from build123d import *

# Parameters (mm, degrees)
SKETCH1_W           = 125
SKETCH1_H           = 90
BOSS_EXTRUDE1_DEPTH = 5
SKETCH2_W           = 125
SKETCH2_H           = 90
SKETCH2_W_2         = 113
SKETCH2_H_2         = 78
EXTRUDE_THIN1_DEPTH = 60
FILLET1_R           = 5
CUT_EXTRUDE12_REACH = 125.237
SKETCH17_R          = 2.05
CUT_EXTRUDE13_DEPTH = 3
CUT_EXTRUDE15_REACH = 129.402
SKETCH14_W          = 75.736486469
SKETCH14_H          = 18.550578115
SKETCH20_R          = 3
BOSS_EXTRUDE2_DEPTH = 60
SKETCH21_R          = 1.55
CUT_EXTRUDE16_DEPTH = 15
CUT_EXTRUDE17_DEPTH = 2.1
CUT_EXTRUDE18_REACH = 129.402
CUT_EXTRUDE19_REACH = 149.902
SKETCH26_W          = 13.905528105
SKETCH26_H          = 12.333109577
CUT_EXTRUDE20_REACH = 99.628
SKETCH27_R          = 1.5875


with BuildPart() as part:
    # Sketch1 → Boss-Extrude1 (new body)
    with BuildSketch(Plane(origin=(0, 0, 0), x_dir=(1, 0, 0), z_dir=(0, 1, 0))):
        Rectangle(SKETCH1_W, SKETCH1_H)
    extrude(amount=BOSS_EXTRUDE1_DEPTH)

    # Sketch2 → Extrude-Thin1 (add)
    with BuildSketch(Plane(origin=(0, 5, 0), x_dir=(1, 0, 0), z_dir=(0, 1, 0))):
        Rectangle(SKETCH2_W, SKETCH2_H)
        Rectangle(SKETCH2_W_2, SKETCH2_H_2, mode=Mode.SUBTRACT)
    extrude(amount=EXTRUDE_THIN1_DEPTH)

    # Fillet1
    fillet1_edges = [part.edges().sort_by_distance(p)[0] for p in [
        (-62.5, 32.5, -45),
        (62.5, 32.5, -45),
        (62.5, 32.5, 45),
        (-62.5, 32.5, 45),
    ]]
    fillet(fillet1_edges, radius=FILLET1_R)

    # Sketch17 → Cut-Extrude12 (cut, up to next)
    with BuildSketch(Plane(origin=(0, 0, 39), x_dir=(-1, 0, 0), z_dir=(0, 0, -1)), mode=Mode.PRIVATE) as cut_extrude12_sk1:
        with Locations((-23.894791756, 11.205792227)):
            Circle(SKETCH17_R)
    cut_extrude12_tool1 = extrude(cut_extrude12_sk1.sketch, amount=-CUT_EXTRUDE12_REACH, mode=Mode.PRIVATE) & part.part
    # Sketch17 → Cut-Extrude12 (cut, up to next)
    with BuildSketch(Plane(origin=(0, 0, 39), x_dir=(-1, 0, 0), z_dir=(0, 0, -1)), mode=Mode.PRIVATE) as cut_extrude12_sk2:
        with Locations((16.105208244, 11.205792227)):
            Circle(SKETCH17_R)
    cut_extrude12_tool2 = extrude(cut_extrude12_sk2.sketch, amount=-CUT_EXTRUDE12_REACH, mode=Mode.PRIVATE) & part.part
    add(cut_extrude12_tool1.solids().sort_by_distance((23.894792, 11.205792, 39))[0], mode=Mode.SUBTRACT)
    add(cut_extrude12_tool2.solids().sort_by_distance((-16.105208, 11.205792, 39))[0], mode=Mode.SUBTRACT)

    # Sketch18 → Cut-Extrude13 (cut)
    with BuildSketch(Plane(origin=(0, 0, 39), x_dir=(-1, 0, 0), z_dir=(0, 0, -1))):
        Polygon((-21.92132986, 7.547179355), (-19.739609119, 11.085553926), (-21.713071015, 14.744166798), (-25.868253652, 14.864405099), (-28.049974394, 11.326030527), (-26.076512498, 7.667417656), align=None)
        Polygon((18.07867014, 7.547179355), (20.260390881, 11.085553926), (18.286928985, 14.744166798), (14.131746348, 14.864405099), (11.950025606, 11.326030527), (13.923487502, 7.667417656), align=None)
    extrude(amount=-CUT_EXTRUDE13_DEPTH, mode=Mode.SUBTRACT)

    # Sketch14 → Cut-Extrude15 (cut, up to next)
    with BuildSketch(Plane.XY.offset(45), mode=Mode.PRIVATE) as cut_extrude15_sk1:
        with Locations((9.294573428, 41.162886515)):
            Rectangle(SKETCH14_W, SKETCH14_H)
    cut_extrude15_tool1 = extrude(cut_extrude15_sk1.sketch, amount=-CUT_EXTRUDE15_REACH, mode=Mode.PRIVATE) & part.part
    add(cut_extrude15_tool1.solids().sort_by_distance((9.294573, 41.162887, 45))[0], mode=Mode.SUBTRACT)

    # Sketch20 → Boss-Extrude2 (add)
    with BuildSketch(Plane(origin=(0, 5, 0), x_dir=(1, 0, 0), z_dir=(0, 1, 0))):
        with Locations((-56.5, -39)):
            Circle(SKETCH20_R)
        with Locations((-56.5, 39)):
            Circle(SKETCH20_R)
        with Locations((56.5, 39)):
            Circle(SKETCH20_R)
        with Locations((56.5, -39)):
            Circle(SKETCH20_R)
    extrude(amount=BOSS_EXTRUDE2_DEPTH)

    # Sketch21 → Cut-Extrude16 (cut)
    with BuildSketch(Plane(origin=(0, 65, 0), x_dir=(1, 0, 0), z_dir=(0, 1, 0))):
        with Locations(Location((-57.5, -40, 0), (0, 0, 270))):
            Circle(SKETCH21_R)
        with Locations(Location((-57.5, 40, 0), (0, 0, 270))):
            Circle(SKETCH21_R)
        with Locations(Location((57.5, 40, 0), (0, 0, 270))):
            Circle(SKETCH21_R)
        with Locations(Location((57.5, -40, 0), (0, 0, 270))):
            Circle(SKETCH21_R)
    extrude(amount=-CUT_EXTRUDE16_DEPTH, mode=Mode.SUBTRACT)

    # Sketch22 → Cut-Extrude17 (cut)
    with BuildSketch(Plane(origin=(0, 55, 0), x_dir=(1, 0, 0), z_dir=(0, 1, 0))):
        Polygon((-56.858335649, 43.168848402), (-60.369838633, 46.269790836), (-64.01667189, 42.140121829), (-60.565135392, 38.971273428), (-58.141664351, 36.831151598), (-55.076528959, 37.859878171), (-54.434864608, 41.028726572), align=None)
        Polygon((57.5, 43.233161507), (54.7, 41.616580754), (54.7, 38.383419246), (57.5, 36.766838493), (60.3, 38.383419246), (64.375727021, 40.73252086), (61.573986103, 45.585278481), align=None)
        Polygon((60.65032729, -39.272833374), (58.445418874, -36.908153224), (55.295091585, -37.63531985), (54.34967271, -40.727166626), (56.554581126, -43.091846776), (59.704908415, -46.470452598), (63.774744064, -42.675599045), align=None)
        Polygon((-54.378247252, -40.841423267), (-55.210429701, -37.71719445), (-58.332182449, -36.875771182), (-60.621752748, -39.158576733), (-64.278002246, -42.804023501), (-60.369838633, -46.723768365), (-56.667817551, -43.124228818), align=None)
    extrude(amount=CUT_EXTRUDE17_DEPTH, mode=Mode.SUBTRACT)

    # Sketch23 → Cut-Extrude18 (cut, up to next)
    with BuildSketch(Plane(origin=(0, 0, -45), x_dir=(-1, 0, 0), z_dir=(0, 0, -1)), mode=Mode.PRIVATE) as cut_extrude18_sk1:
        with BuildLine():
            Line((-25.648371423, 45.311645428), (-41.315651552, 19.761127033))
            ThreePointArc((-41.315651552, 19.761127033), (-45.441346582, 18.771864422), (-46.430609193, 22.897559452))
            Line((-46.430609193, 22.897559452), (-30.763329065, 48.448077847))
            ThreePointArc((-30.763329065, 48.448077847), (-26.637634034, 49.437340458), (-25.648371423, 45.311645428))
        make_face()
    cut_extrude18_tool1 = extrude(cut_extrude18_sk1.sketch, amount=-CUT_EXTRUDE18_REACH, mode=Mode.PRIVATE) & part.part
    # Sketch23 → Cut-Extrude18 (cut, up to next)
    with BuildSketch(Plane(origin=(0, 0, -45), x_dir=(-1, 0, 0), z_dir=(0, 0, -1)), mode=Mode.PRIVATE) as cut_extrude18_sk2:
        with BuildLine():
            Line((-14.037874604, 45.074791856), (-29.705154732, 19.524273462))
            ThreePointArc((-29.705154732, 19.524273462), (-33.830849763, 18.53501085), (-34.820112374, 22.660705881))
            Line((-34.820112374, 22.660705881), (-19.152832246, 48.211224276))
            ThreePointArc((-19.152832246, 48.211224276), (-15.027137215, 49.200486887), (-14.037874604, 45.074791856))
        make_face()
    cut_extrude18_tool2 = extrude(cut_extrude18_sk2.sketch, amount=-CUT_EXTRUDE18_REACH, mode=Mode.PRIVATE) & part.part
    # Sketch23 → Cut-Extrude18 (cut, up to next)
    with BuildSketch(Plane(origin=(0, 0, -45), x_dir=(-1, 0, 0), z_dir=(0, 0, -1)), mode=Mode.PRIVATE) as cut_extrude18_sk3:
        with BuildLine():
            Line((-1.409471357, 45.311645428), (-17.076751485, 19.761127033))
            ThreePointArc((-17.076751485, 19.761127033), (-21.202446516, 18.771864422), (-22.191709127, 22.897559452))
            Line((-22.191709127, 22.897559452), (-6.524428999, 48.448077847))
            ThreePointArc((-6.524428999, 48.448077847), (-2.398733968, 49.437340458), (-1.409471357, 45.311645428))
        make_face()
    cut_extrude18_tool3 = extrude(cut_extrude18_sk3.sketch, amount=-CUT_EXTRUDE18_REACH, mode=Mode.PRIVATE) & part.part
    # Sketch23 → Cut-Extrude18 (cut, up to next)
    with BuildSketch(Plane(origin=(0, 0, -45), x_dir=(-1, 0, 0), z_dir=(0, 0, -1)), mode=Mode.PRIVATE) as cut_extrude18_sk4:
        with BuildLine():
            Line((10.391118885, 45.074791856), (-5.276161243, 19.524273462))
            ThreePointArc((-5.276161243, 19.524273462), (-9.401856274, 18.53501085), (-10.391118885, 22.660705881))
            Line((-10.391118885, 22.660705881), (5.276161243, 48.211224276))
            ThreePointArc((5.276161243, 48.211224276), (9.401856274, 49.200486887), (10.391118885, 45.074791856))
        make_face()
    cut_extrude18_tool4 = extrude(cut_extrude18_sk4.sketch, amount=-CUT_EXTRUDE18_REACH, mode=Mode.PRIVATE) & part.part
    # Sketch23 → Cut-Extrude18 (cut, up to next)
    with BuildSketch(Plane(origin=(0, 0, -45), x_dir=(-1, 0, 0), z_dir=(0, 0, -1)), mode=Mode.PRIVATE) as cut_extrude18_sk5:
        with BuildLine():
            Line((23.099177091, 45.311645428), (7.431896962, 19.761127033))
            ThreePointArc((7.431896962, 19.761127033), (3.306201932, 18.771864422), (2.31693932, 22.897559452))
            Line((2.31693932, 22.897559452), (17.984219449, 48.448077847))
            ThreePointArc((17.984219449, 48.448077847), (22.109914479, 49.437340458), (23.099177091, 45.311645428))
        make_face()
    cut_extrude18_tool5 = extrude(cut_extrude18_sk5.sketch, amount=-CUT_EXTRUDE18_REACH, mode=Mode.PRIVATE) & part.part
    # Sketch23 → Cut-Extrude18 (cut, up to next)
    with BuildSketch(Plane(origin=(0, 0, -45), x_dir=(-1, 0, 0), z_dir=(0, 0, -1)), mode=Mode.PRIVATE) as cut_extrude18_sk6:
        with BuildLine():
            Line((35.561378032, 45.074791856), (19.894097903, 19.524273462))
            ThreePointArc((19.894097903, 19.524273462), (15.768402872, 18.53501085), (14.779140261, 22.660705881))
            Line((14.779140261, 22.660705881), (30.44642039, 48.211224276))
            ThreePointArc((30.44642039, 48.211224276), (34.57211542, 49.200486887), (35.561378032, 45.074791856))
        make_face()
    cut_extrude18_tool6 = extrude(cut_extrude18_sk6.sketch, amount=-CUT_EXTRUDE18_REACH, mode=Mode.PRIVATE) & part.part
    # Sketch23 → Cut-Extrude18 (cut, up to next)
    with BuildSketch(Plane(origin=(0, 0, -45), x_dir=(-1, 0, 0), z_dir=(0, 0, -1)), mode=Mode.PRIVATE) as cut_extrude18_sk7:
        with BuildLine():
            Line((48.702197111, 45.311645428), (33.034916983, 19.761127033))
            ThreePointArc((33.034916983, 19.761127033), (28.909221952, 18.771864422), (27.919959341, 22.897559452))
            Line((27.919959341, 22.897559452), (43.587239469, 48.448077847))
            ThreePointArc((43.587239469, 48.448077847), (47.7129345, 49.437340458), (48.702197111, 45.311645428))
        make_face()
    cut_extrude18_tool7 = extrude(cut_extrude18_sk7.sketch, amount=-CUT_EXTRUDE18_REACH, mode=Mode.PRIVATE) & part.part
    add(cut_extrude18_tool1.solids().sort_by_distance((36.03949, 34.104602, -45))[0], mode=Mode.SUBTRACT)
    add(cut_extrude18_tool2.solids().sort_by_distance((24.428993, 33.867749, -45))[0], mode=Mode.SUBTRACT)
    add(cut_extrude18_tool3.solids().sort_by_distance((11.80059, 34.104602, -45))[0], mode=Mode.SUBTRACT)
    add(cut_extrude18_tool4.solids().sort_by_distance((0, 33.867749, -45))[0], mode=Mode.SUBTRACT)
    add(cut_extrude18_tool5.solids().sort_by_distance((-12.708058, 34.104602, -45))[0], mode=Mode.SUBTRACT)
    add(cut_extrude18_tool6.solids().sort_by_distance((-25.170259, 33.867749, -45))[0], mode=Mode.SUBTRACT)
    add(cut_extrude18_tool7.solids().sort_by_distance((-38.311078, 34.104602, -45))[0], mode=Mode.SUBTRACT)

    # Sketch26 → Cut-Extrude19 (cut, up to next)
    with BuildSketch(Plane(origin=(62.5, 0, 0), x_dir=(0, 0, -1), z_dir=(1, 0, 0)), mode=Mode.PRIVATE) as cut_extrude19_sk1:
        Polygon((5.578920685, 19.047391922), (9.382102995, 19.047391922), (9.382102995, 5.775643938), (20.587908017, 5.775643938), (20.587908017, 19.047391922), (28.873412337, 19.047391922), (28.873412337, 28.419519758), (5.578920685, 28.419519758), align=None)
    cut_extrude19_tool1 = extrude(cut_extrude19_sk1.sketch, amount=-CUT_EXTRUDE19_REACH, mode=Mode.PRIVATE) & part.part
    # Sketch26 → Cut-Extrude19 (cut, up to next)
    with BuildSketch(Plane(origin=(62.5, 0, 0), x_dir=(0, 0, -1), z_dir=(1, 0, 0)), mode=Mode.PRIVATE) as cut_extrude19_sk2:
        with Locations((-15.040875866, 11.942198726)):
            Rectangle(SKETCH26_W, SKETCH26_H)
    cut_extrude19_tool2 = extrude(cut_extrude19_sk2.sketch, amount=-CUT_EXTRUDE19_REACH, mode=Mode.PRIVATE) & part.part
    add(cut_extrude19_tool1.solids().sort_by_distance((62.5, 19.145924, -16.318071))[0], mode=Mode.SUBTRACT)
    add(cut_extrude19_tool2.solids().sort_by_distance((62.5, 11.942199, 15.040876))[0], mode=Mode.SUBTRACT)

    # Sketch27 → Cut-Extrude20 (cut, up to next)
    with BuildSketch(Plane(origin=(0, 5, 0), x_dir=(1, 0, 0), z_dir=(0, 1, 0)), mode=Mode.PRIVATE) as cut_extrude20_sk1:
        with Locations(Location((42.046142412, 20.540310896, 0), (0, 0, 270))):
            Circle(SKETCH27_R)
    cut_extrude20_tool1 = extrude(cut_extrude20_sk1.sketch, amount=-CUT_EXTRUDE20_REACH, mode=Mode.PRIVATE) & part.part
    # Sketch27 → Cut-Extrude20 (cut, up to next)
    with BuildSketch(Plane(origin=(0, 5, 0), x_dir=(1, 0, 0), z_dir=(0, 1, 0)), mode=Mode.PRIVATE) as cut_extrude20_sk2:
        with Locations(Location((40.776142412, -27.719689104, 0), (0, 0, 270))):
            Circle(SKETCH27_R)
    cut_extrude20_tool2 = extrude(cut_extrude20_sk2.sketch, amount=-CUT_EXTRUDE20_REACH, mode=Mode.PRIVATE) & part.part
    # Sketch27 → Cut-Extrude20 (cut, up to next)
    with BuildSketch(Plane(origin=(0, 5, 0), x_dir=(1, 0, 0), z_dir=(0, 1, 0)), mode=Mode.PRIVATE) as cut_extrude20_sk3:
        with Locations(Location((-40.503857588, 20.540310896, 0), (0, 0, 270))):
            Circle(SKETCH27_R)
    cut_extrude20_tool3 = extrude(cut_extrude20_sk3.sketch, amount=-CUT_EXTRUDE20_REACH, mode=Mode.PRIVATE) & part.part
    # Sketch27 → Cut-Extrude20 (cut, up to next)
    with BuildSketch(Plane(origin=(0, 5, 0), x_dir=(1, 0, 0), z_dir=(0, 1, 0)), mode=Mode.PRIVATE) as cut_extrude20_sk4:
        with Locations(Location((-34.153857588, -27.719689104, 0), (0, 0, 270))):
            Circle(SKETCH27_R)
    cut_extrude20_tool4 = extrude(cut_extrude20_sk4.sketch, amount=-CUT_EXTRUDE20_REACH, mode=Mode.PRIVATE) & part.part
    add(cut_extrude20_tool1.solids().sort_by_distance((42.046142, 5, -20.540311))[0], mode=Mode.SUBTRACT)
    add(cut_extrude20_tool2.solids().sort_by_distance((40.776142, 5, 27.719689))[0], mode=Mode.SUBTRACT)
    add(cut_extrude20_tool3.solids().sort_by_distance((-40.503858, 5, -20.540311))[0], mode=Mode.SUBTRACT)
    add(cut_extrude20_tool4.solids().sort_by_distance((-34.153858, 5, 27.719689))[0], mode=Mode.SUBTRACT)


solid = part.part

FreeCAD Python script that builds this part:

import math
import FreeCAD as App
import Part
import Sketcher

V = App.Vector
Q = App.Units.Quantity


def edges_at(feature, points):
    """Names of the edges that pass closest to the given points."""
    edges = feature.Shape.Edges
    near = lambda p: min(range(len(edges)), key=lambda i: edges[i].distToShape(Part.Vertex(*p))[0])
    return sorted({f"Edge{near(p) + 1}" for p in points})


def add_polygon(sketch, points):
    """Adds a closed chain of lines whose ends are joined by coincident constraints."""
    first, n = sketch.GeometryCount, len(points)
    for a, b in zip(points, points[1:] + points[:1]):
        sketch.addGeometry(Part.LineSegment(App.Vector(*a, 0), App.Vector(*b, 0)), False)
    for i in range(n):
        sketch.addConstraint(Sketcher.Constraint("Coincident", first + i, 2, first + (i + 1) % n, 1))

doc = App.newDocument("Part")
body = doc.addObject("PartDesign::Body", "Body")

sketch1 = body.newObject("Sketcher::SketchObject", "Sketch")
sketch1.AttachmentSupport = (doc.getObject("XZ_Plane"), [""])
sketch1.MapMode = "FlatFace"
add_polygon(sketch1, [(-62.5, -45), (-62.5, 45), (62.5, 45), (62.5, -45)])
sketch1.addConstraint(Sketcher.Constraint("Vertical", 0))
sketch1.addConstraint(Sketcher.Constraint("Horizontal", 1))
sketch1.addConstraint(Sketcher.Constraint("Vertical", 2))
sketch1.addConstraint(Sketcher.Constraint("Horizontal", 3))
sketch1.addConstraint(Sketcher.Constraint("Symmetric", 0, 2, 2, 2, -1, 1))
sketch1.addConstraint(Sketcher.Constraint("DistanceX", 1, 1, 1, 2, 125.0))
sketch1.addConstraint(Sketcher.Constraint("DistanceY", 0, 1, 0, 2, 90.0))
pad1 = body.newObject("PartDesign::Pad", "Pad")
pad1.Profile = sketch1
pad1.Length = 5
pad1.Reversed = True

sketch2 = body.newObject("Sketcher::SketchObject", "Sketch001")
sketch2.AttachmentSupport = (doc.getObject("XZ_Plane"), [""])
sketch2.MapMode = "FlatFace"
sketch2.AttachmentOffset = App.Placement(V(0, 0, -5), App.Rotation())
add_polygon(sketch2, [(-62.5, -45), (-62.5, 45), (62.5, 45), (62.5, -45)])
add_polygon(sketch2, [(56.5, 39), (-56.5, 39), (-56.5, -39), (56.5, -39)])
sketch2.addConstraint(Sketcher.Constraint("Vertical", 0))
sketch2.addConstraint(Sketcher.Constraint("Horizontal", 1))
sketch2.addConstraint(Sketcher.Constraint("Vertical", 2))
sketch2.addConstraint(Sketcher.Constraint("Horizontal", 3))
sketch2.addConstraint(Sketcher.Constraint("Horizontal", 4))
sketch2.addConstraint(Sketcher.Constraint("Vertical", 5))
sketch2.addConstraint(Sketcher.Constraint("Horizontal", 6))
sketch2.addConstraint(Sketcher.Constraint("Vertical", 7))
sketch2.addConstraint(Sketcher.Constraint("Symmetric", 0, 2, 2, 2, -1, 1))
sketch2.addConstraint(Sketcher.Constraint("Symmetric", 4, 2, 6, 2, -1, 1))
sketch2.addConstraint(Sketcher.Constraint("DistanceX", 1, 1, 1, 2, 125.0))
sketch2.addConstraint(Sketcher.Constraint("DistanceX", 4, 2, 4, 1, 113.0))
sketch2.addConstraint(Sketcher.Constraint("DistanceY", 0, 1, 0, 2, 90.0))
sketch2.addConstraint(Sketcher.Constraint("DistanceY", 5, 2, 5, 1, 78.0))
pad2 = body.newObject("PartDesign::Pad", "Pad001")
pad2.Profile = sketch2
pad2.Length = 60
pad2.Reversed = True
doc.recompute()

fillet = body.newObject("PartDesign::Fillet", "Fillet")
fillet.Base = (pad2, edges_at(pad2, [
    (-62.5, 32.5, -45),
    (62.5, 32.5, -45),
    (62.5, 32.5, 45),
    (-62.5, 32.5, 45),
]))
fillet.Radius = 5

sketch3 = body.newObject("Sketcher::SketchObject", "Sketch002")
sketch3.AttachmentSupport = (doc.getObject("XY_Plane"), [""])
sketch3.MapMode = "FlatFace"
sketch3.AttachmentOffset = App.Placement(V(0, 0, 39), App.Rotation())
sketch3.addGeometry(Part.Circle(V(23.894792, 11.205792, 0), V(0, 0, 1), 2.05), False)
sketch3.addConstraint(Sketcher.Constraint("Diameter", 0, 4.1))
sketch3.addConstraint(Sketcher.Constraint("DistanceX", -1, 1, 0, 3, 23.894792))
sketch3.addConstraint(Sketcher.Constraint("DistanceY", -1, 1, 0, 3, 11.205792))
pocket1 = body.newObject("PartDesign::Pocket", "Pocket")
pocket1.Profile = sketch3
pocket1.Type = "UpToFirst"
pocket1.Reversed = True

sketch4 = body.newObject("Sketcher::SketchObject", "Sketch003")
sketch4.AttachmentSupport = (doc.getObject("XY_Plane"), [""])
sketch4.MapMode = "FlatFace"
sketch4.AttachmentOffset = App.Placement(V(0, 0, 39), App.Rotation())
sketch4.addGeometry(Part.Circle(V(-16.105208, 11.205792, 0), V(0, 0, 1), 2.05), False)
sketch4.addConstraint(Sketcher.Constraint("Diameter", 0, 4.1))
sketch4.addConstraint(Sketcher.Constraint("DistanceX", 0, 3, -1, 1, 16.105208))
sketch4.addConstraint(Sketcher.Constraint("DistanceY", -1, 1, 0, 3, 11.205792))
pocket2 = body.newObject("PartDesign::Pocket", "Pocket001")
pocket2.Profile = sketch4
pocket2.Type = "UpToFirst"
pocket2.Reversed = True

sketch5 = body.newObject("Sketcher::SketchObject", "Sketch004")
sketch5.AttachmentSupport = (doc.getObject("XY_Plane"), [""])
sketch5.MapMode = "FlatFace"
sketch5.AttachmentOffset = App.Placement(V(0, 0, 39), App.Rotation())
add_polygon(sketch5, [(21.92133, 7.547179), (19.739609, 11.085554), (21.713071, 14.744167), (25.868254, 14.864405), (28.049974, 11.326031), (26.076512, 7.667418)])
add_polygon(sketch5, [(-18.07867, 7.547179), (-20.260391, 11.085554), (-18.286929, 14.744167), (-14.131746, 14.864405), (-11.950026, 11.326031), (-13.923488, 7.667418)])
sketch5.addConstraint(Sketcher.Constraint("Parallel", 0, 3))
sketch5.addConstraint(Sketcher.Constraint("Parallel", 1, 4))
sketch5.addConstraint(Sketcher.Constraint("Parallel", 2, 5))
sketch5.addConstraint(Sketcher.Constraint("Parallel", 3, 6))
sketch5.addConstraint(Sketcher.Constraint("Parallel", 4, 7))
sketch5.addConstraint(Sketcher.Constraint("Parallel", 5, 8))
sketch5.addConstraint(Sketcher.Constraint("Parallel", 6, 9))
sketch5.addConstraint(Sketcher.Constraint("Parallel", 7, 10))
sketch5.addConstraint(Sketcher.Constraint("Parallel", 8, 11))
sketch5.addConstraint(Sketcher.Constraint("Horizontal", 0, 2, 6, 2))
sketch5.addConstraint(Sketcher.Constraint("Horizontal", 1, 2, 7, 2))
sketch5.addConstraint(Sketcher.Constraint("Horizontal", 2, 2, 8, 2))
sketch5.addConstraint(Sketcher.Constraint("Horizontal", 3, 2, 9, 2))
sketch5.addConstraint(Sketcher.Constraint("Horizontal", 4, 2, 10, 2))
sketch5.addConstraint(Sketcher.Constraint("Equal", 0, 1))
sketch5.addConstraint(Sketcher.Constraint("Equal", 1, 2))
sketch5.addConstraint(Sketcher.Constraint("Equal", 2, 3))
sketch5.addConstraint(Sketcher.Constraint("DistanceX", 6, 2, 0, 2, 40.0))
sketch5.addConstraint(Sketcher.Constraint("Distance", 0, 4.156922))
sketch5.addConstraint(Sketcher.Constraint("DistanceX", -1, 1, 0, 2, 19.739609))
sketch5.addConstraint(Sketcher.Constraint("DistanceX", -1, 1, 1, 2, 21.713071))
sketch5.addConstraint(Sketcher.Constraint("DistanceY", -1, 1, 3, 2, 11.326031))
sketch5.addConstraint(Sketcher.Constraint("DistanceX", -1, 1, 5, 2, 21.92133))
sketch5.addConstraint(Sketcher.Constraint("DistanceY", -1, 1, 5, 2, 7.547179))
pocket3 = body.newObject("PartDesign::Pocket", "Pocket002")
pocket3.Profile = sketch5
pocket3.Length = 3
pocket3.Reversed = True

sketch6 = body.newObject("Sketcher::SketchObject", "Sketch005")
sketch6.AttachmentSupport = (doc.getObject("XY_Plane"), [""])
sketch6.MapMode = "FlatFace"
sketch6.AttachmentOffset = App.Placement(V(0, 0, 45), App.Rotation())
add_polygon(sketch6, [(-28.57367, 50.438176), (-28.57367, 31.887597), (47.162817, 31.887597), (47.162817, 50.438176)])
sketch6.addConstraint(Sketcher.Constraint("Vertical", 0))
sketch6.addConstraint(Sketcher.Constraint("Horizontal", 1))
sketch6.addConstraint(Sketcher.Constraint("Vertical", 2))
sketch6.addConstraint(Sketcher.Constraint("Horizontal", 3))
sketch6.addConstraint(Sketcher.Constraint("DistanceY", 0, 2, 0, 1, 18.550578))
sketch6.addConstraint(Sketcher.Constraint("DistanceX", 1, 1, 1, 2, 75.736486))
sketch6.addConstraint(Sketcher.Constraint("DistanceX", 0, 2, -1, 1, 28.57367))
sketch6.addConstraint(Sketcher.Constraint("DistanceY", -1, 1, 0, 2, 31.887597))
pocket4 = body.newObject("PartDesign::Pocket", "Pocket003")
pocket4.Profile = sketch6
pocket4.Type = "UpToFirst"

sketch7 = body.newObject("Sketcher::SketchObject", "Sketch006")
sketch7.AttachmentSupport = (doc.getObject("XZ_Plane"), [""])
sketch7.MapMode = "FlatFace"
sketch7.AttachmentOffset = App.Placement(V(0, 0, -5), App.Rotation())
sketch7.addGeometry(Part.Circle(V(-56.5, 39, 0), V(0, 0, 1), 3), False)
sketch7.addGeometry(Part.Circle(V(-56.5, -39, 0), V(0, 0, 1), 3), False)
sketch7.addGeometry(Part.Circle(V(56.5, -39, 0), V(0, 0, 1), 3), False)
sketch7.addGeometry(Part.Circle(V(56.5, 39, 0), V(0, 0, 1), 3), False)
sketch7.addConstraint(Sketcher.Constraint("Equal", 0, 1))
sketch7.addConstraint(Sketcher.Constraint("Equal", 1, 2))
sketch7.addConstraint(Sketcher.Constraint("Equal", 2, 3))
sketch7.addConstraint(Sketcher.Constraint("Symmetric", 0, 3, 2, 3, -1, 1))
sketch7.addConstraint(Sketcher.Constraint("Symmetric", 1, 3, 3, 3, -1, 1))
sketch7.addConstraint(Sketcher.Constraint("Symmetric", 1, 3, 2, 3, -2))
sketch7.addConstraint(Sketcher.Constraint("Diameter", 0, 6.0))
sketch7.addConstraint(Sketcher.Constraint("DistanceY", -1, 1, 0, 3, 39.0))
sketch7.addConstraint(Sketcher.Constraint("DistanceX", 1, 3, 2, 3, 113.0))
pad3 = body.newObject("PartDesign::Pad", "Pad002")
pad3.Profile = sketch7
pad3.Length = 60
pad3.Reversed = True

sketch8 = body.newObject("Sketcher::SketchObject", "Sketch007")
sketch8.AttachmentSupport = (doc.getObject("XZ_Plane"), [""])
sketch8.MapMode = "FlatFace"
sketch8.AttachmentOffset = App.Placement(V(0, 0, -65), App.Rotation())
sketch8.addGeometry(Part.Circle(V(-57.5, 40, 0), V(0, 0, 1), 1.55), False)
sketch8.addGeometry(Part.Circle(V(-57.5, -40, 0), V(0, 0, 1), 1.55), False)
sketch8.addGeometry(Part.Circle(V(57.5, -40, 0), V(0, 0, 1), 1.55), False)
sketch8.addGeometry(Part.Circle(V(57.5, 40, 0), V(0, 0, 1), 1.55), False)
sketch8.addConstraint(Sketcher.Constraint("Equal", 0, 1))
sketch8.addConstraint(Sketcher.Constraint("Equal", 1, 2))
sketch8.addConstraint(Sketcher.Constraint("Equal", 2, 3))
sketch8.addConstraint(Sketcher.Constraint("Symmetric", 0, 3, 2, 3, -1, 1))
sketch8.addConstraint(Sketcher.Constraint("Symmetric", 1, 3, 3, 3, -1, 1))
sketch8.addConstraint(Sketcher.Constraint("Symmetric", 1, 3, 2, 3, -2))
sketch8.addConstraint(Sketcher.Constraint("Diameter", 0, 3.1))
sketch8.addConstraint(Sketcher.Constraint("DistanceY", -1, 1, 0, 3, 40.0))
sketch8.addConstraint(Sketcher.Constraint("DistanceX", 1, 3, 2, 3, 115.0))
pocket5 = body.newObject("PartDesign::Pocket", "Pocket004")
pocket5.Profile = sketch8
pocket5.Length = 15
pocket5.Reversed = True

sketch9 = body.newObject("Sketcher::SketchObject", "Sketch008")
sketch9.AttachmentSupport = (doc.getObject("XZ_Plane"), [""])
sketch9.MapMode = "FlatFace"
sketch9.AttachmentOffset = App.Placement(V(0, 0, -55), App.Rotation())
add_polygon(sketch9, [(-56.858336, -43.168848), (-60.369839, -46.269791), (-64.016672, -42.140122), (-60.565135, -38.971273), (-58.141664, -36.831152), (-55.076529, -37.859878), (-54.434865, -41.028727)])
add_polygon(sketch9, [(57.5, -43.233162), (54.7, -41.616581), (54.7, -38.383419), (57.5, -36.766838), (60.3, -38.383419), (64.375727, -40.732521), (61.573986, -45.585278)])
add_polygon(sketch9, [(60.650327, 39.272833), (58.445419, 36.908153), (55.295092, 37.63532), (54.349673, 40.727167), (56.554581, 43.091847), (59.704908, 46.470453), (63.774744, 42.675599)])
add_polygon(sketch9, [(-54.378247, 40.841423), (-55.21043, 37.717194), (-58.332182, 36.875771), (-60.621753, 39.158577), (-64.278002, 42.804024), (-60.369839, 46.723768), (-56.667818, 43.124229)])
sketch9.addConstraint(Sketcher.Constraint("Vertical", 8))
sketch9.addConstraint(Sketcher.Constraint("Perpendicular", 0, 1))
sketch9.addConstraint(Sketcher.Constraint("Perpendicular", 1, 3))
sketch9.addConstraint(Sketcher.Constraint("Parallel", 3, 6))
sketch9.addConstraint(Sketcher.Constraint("Parallel", 7, 10))
sketch9.addConstraint(Sketcher.Constraint("Perpendicular", 10, 12))
sketch9.addConstraint(Sketcher.Constraint("Perpendicular", 12, 13))
sketch9.addConstraint(Sketcher.Constraint("Parallel", 14, 17))
sketch9.addConstraint(Sketcher.Constraint("Parallel", 17, 18))
sketch9.addConstraint(Sketcher.Constraint("Perpendicular", 18, 19))
sketch9.addConstraint(Sketcher.Constraint("Parallel", 23, 24))
sketch9.addConstraint(Sketcher.Constraint("Perpendicular", 24, 25))
sketch9.addConstraint(Sketcher.Constraint("Perpendicular", 25, 27))
sketch9.addConstraint(Sketcher.Constraint("Horizontal", 8, 2, 10, 2))
sketch9.addConstraint(Sketcher.Constraint("Vertical", 9, 2, 13, 2))
sketch9.addConstraint(Sketcher.Constraint("Vertical", 0, 2, 25, 2))
sketch9.addConstraint(Sketcher.Constraint("Equal", 3, 4))
sketch9.addConstraint(Sketcher.Constraint("Equal", 4, 5))
sketch9.addConstraint(Sketcher.Constraint("Equal", 5, 6))
sketch9.addConstraint(Sketcher.Constraint("Equal", 6, 7))
sketch9.addConstraint(Sketcher.Constraint("Equal", 7, 9))
sketch9.addConstraint(Sketcher.Constraint("Equal", 11, 13))
sketch9.addConstraint(Sketcher.Constraint("Equal", 10, 14))
sketch9.addConstraint(Sketcher.Constraint("Equal", 14, 15))
sketch9.addConstraint(Sketcher.Constraint("Equal", 15, 16))
sketch9.addConstraint(Sketcher.Constraint("Equal", 16, 17))
sketch9.addConstraint(Sketcher.Constraint("Equal", 17, 21))
sketch9.addConstraint(Sketcher.Constraint("Equal", 21, 22))
sketch9.addConstraint(Sketcher.Constraint("Equal", 22, 23))
sketch9.addConstraint(Sketcher.Constraint("Equal", 23, 27))
sketch9.addConstraint(Sketcher.Constraint("Angle", 7, Q("150 deg")))
sketch9.addConstraint(Sketcher.Constraint("DistanceX", -1, 1, 7, 2, 54.7))
sketch9.addConstraint(Sketcher.Constraint("DistanceX", -1, 1, 9, 2, 57.5))
sketch9.addConstraint(Sketcher.Constraint("DistanceY", -1, 1, 19, 2, 42.675599))
sketch9.addConstraint(Sketcher.Constraint("DistanceX", 3, 2, 5, 2, 3.7068))
sketch9.addConstraint(Sketcher.Constraint("DistanceY", 11, 2, 10, 2, 2.349102))
sketch9.addConstraint(Sketcher.Constraint("DistanceY", 14, 2, 18, 2, 9.562299))
sketch9.addConstraint(Sketcher.Constraint("DistanceX", 21, 2, 4, 2, 0.133901))
sketch9.addConstraint(Sketcher.Constraint("DistanceY", 4, 2, 24, 2, 80.663902))
sketch9.addConstraint(Sketcher.Constraint("Distance", 0, 4.684709))
sketch9.addConstraint(Sketcher.Constraint("Distance", 12, 5.603482))
sketch9.addConstraint(Sketcher.Constraint("Distance", 20, 4.61961))
sketch9.addConstraint(Sketcher.Constraint("Distance", 26, 5.163492))
sketch9.addConstraint(Sketcher.Constraint("DistanceX", 0, 2, -1, 1, 60.369839))
sketch9.addConstraint(Sketcher.Constraint("DistanceY", 0, 2, -1, 1, 46.269791))
sketch9.addConstraint(Sketcher.Constraint("DistanceX", 1, 2, -1, 1, 64.016672))
sketch9.addConstraint(Sketcher.Constraint("DistanceY", 1, 2, -1, 1, 42.140122))
sketch9.addConstraint(Sketcher.Constraint("DistanceY", 3, 2, -1, 1, 36.831152))
sketch9.addConstraint(Sketcher.Constraint("DistanceY", 7, 2, -1, 1, 41.616581))
sketch9.addConstraint(Sketcher.Constraint("DistanceX", -1, 1, 14, 2, 58.445419))
sketch9.addConstraint(Sketcher.Constraint("DistanceX", -1, 1, 15, 2, 55.295092))
sketch9.addConstraint(Sketcher.Constraint("DistanceY", -1, 1, 15, 2, 37.63532))
sketch9.addConstraint(Sketcher.Constraint("DistanceX", -1, 1, 17, 2, 56.554581))
sketch9.addConstraint(Sketcher.Constraint("DistanceY", -1, 1, 22, 2, 36.875771))
sketch9.addConstraint(Sketcher.Constraint("DistanceY", -1, 1, 25, 2, 46.723768))
sketch9.addConstraint(Sketcher.Constraint("DistanceY", -1, 1, 26, 2, 43.124229))
pocket6 = body.newObject("PartDesign::Pocket", "Pocket005")
pocket6.Profile = sketch9
pocket6.Length = 2.1

sketch10 = body.newObject("Sketcher::SketchObject", "Sketch009")
sketch10.AttachmentSupport = (doc.getObject("XY_Plane"), [""])
sketch10.MapMode = "FlatFace"
sketch10.AttachmentOffset = App.Placement(V(0, 0, -45), App.Rotation())
sketch10.addGeometry(Part.LineSegment(V(41.315652, 19.761127, 0), V(25.648371, 45.311645, 0)), False)
sketch10.addGeometry(Part.ArcOfCircle(Part.Circle(V(28.20585, 46.879862, 0), V(0, 0, 1), 3), math.radians(31.51614), math.radians(211.51614)), False)
sketch10.addGeometry(Part.LineSegment(V(30.763329, 48.448078, 0), V(46.430609, 22.897559, 0)), False)
sketch10.addGeometry(Part.ArcOfCircle(Part.Circle(V(43.87313, 21.329343, 0), V(0, 0, 1), 3), math.radians(-148.48386), math.radians(31.51614)), False)
sketch10.addConstraint(Sketcher.Constraint("Tangent", 0, 2, 1, 2))
sketch10.addConstraint(Sketcher.Constraint("Tangent", 1, 1, 2, 1))
sketch10.addConstraint(Sketcher.Constraint("Tangent", 2, 2, 3, 2))
sketch10.addConstraint(Sketcher.Constraint("Tangent", 3, 1, 0, 1))
sketch10.addConstraint(Sketcher.Constraint("Equal", 1, 3))
sketch10.addConstraint(Sketcher.Constraint("Radius", 1, 3.0))
sketch10.addConstraint(Sketcher.Constraint("DistanceX", 1, 1, 3, 3, 13.109801))
sketch10.addConstraint(Sketcher.Constraint("Distance", 0, 29.971531))
sketch10.addConstraint(Sketcher.Constraint("DistanceX", -1, 1, 1, 3, 28.20585))
sketch10.addConstraint(Sketcher.Constraint("DistanceY", -1, 1, 1, 3, 46.879862))
pocket7 = body.newObject("PartDesign::Pocket", "Pocket006")
pocket7.Profile = sketch10
pocket7.Type = "UpToFirst"
pocket7.Reversed = True

sketch11 = body.newObject("Sketcher::SketchObject", "Sketch010")
sketch11.AttachmentSupport = (doc.getObject("XY_Plane"), [""])
sketch11.MapMode = "FlatFace"
sketch11.AttachmentOffset = App.Placement(V(0, 0, -45), App.Rotation())
sketch11.addGeometry(Part.LineSegment(V(29.705155, 19.524273, 0), V(14.037875, 45.074792, 0)), False)
sketch11.addGeometry(Part.ArcOfCircle(Part.Circle(V(16.595353, 46.643008, 0), V(0, 0, 1), 3), math.radians(31.51614), math.radians(211.51614)), False)
sketch11.addGeometry(Part.LineSegment(V(19.152832, 48.211224, 0), V(34.820112, 22.660706, 0)), False)
sketch11.addGeometry(Part.ArcOfCircle(Part.Circle(V(32.262634, 21.09249, 0), V(0, 0, 1), 3), math.radians(-148.48386), math.radians(31.51614)), False)
sketch11.addConstraint(Sketcher.Constraint("Tangent", 0, 2, 1, 2))
sketch11.addConstraint(Sketcher.Constraint("Tangent", 1, 1, 2, 1))
sketch11.addConstraint(Sketcher.Constraint("Tangent", 2, 2, 3, 2))
sketch11.addConstraint(Sketcher.Constraint("Tangent", 3, 1, 0, 1))
sketch11.addConstraint(Sketcher.Constraint("Equal", 1, 3))
sketch11.addConstraint(Sketcher.Constraint("Radius", 1, 3.0))
sketch11.addConstraint(Sketcher.Constraint("DistanceX", 1, 1, 3, 3, 13.109801))
sketch11.addConstraint(Sketcher.Constraint("Distance", 0, 29.971531))
sketch11.addConstraint(Sketcher.Constraint("DistanceY", -1, 1, 1, 3, 46.643008))
sketch11.addConstraint(Sketcher.Constraint("DistanceX", -1, 1, 1, 3, 16.595353))
pocket8 = body.newObject("PartDesign::Pocket", "Pocket007")
pocket8.Profile = sketch11
pocket8.Type = "UpToFirst"
pocket8.Reversed = True

sketch12 = body.newObject("Sketcher::SketchObject", "Sketch011")
sketch12.AttachmentSupport = (doc.getObject("XY_Plane"), [""])
sketch12.MapMode = "FlatFace"
sketch12.AttachmentOffset = App.Placement(V(0, 0, -45), App.Rotation())
sketch12.addGeometry(Part.LineSegment(V(17.076751, 19.761127, 0), V(1.409471, 45.311645, 0)), False)
sketch12.addGeometry(Part.ArcOfCircle(Part.Circle(V(3.96695, 46.879862, 0), V(0, 0, 1), 3), math.radians(31.51614), math.radians(211.51614)), False)
sketch12.addGeometry(Part.LineSegment(V(6.524429, 48.448078, 0), V(22.191709, 22.897559, 0)), False)
sketch12.addGeometry(Part.ArcOfCircle(Part.Circle(V(19.63423, 21.329343, 0), V(0, 0, 1), 3), math.radians(-148.48386), math.radians(31.51614)), False)
sketch12.addConstraint(Sketcher.Constraint("Tangent", 0, 2, 1, 2))
sketch12.addConstraint(Sketcher.Constraint("Tangent", 1, 1, 2, 1))
sketch12.addConstraint(Sketcher.Constraint("Tangent", 2, 2, 3, 2))
sketch12.addConstraint(Sketcher.Constraint("Tangent", 3, 1, 0, 1))
sketch12.addConstraint(Sketcher.Constraint("Equal", 1, 3))
sketch12.addConstraint(Sketcher.Constraint("Radius", 1, 3.0))
sketch12.addConstraint(Sketcher.Constraint("DistanceX", 1, 1, 3, 3, 13.109801))
sketch12.addConstraint(Sketcher.Constraint("Distance", 0, 29.971531))
sketch12.addConstraint(Sketcher.Constraint("DistanceX", -1, 1, 1, 3, 3.96695))
sketch12.addConstraint(Sketcher.Constraint("DistanceY", -1, 1, 1, 3, 46.879862))
pocket9 = body.newObject("PartDesign::Pocket", "Pocket008")
pocket9.Profile = sketch12
pocket9.Type = "UpToFirst"
pocket9.Reversed = True

sketch13 = body.newObject("Sketcher::SketchObject", "Sketch012")
sketch13.AttachmentSupport = (doc.getObject("XY_Plane"), [""])
sketch13.MapMode = "FlatFace"
sketch13.AttachmentOffset = App.Placement(V(0, 0, -45), App.Rotation())
sketch13.addGeometry(Part.LineSegment(V(5.276161, 19.524273, 0), V(-10.391119, 45.074792, 0)), False)
sketch13.addGeometry(Part.ArcOfCircle(Part.Circle(V(-7.83364, 46.643008, 0), V(0, 0, 1), 3), math.radians(31.51614), math.radians(211.51614)), False)
sketch13.addGeometry(Part.LineSegment(V(-5.276161, 48.211224, 0), V(10.391119, 22.660706, 0)), False)
sketch13.addGeometry(Part.ArcOfCircle(Part.Circle(V(7.83364, 21.09249, 0), V(0, 0, 1), 3), math.radians(-148.48386), math.radians(31.51614)), False)
sketch13.addConstraint(Sketcher.Constraint("Tangent", 0, 2, 1, 2))
sketch13.addConstraint(Sketcher.Constraint("Tangent", 1, 1, 2, 1))
sketch13.addConstraint(Sketcher.Constraint("Tangent", 2, 2, 3, 2))
sketch13.addConstraint(Sketcher.Constraint("Tangent", 3, 1, 0, 1))
sketch13.addConstraint(Sketcher.Constraint("Equal", 1, 3))
sketch13.addConstraint(Sketcher.Constraint("Radius", 1, 3.0))
sketch13.addConstraint(Sketcher.Constraint("DistanceX", 1, 1, 3, 3, 13.109801))
sketch13.addConstraint(Sketcher.Constraint("Distance", 0, 29.971531))
sketch13.addConstraint(Sketcher.Constraint("DistanceX", 1, 3, -1, 1, 7.83364))
sketch13.addConstraint(Sketcher.Constraint("DistanceY", -1, 1, 1, 3, 46.643008))
pocket10 = body.newObject("PartDesign::Pocket", "Pocket009")
pocket10.Profile = sketch13
pocket10.Type = "UpToFirst"
pocket10.Reversed = True

sketch14 = body.newObject("Sketcher::SketchObject", "Sketch013")
sketch14.AttachmentSupport = (doc.getObject("XY_Plane"), [""])
sketch14.MapMode = "FlatFace"
sketch14.AttachmentOffset = App.Placement(V(0, 0, -45), App.Rotation())
sketch14.addGeometry(Part.LineSegment(V(-7.431897, 19.761127, 0), V(-23.099177, 45.311645, 0)), False)
sketch14.addGeometry(Part.ArcOfCircle(Part.Circle(V(-20.541698, 46.879862, 0), V(0, 0, 1), 3), math.radians(31.51614), math.radians(211.51614)), False)
sketch14.addGeometry(Part.LineSegment(V(-17.984219, 48.448078, 0), V(-2.316939, 22.897559, 0)), False)
sketch14.addGeometry(Part.ArcOfCircle(Part.Circle(V(-4.874418, 21.329343, 0), V(0, 0, 1), 3), math.radians(-148.48386), math.radians(31.51614)), False)
sketch14.addConstraint(Sketcher.Constraint("Tangent", 0, 2, 1, 2))
sketch14.addConstraint(Sketcher.Constraint("Tangent", 1, 1, 2, 1))
sketch14.addConstraint(Sketcher.Constraint("Tangent", 2, 2, 3, 2))
sketch14.addConstraint(Sketcher.Constraint("Tangent", 3, 1, 0, 1))
sketch14.addConstraint(Sketcher.Constraint("Equal", 1, 3))
sketch14.addConstraint(Sketcher.Constraint("Radius", 1, 3.0))
sketch14.addConstraint(Sketcher.Constraint("DistanceX", 1, 3, -1, 1, 20.541698))
sketch14.addConstraint(Sketcher.Constraint("DistanceX", 1, 1, 3, 3, 13.109801))
sketch14.addConstraint(Sketcher.Constraint("Distance", 0, 29.971531))
sketch14.addConstraint(Sketcher.Constraint("DistanceY", -1, 1, 1, 3, 46.879862))
pocket11 = body.newObject("PartDesign::Pocket", "Pocket010")
pocket11.Profile = sketch14
pocket11.Type = "UpToFirst"
pocket11.Reversed = True

sketch15 = body.newObject("Sketcher::SketchObject", "Sketch014")
sketch15.AttachmentSupport = (doc.getObject("XY_Plane"), [""])
sketch15.MapMode = "FlatFace"
sketch15.AttachmentOffset = App.Placement(V(0, 0, -45), App.Rotation())
sketch15.addGeometry(Part.LineSegment(V(-19.894098, 19.524273, 0), V(-35.561378, 45.074792, 0)), False)
sketch15.addGeometry(Part.ArcOfCircle(Part.Circle(V(-33.003899, 46.643008, 0), V(0, 0, 1), 3), math.radians(31.51614), math.radians(211.51614)), False)
sketch15.addGeometry(Part.LineSegment(V(-30.44642, 48.211224, 0), V(-14.77914, 22.660706, 0)), False)
sketch15.addGeometry(Part.ArcOfCircle(Part.Circle(V(-17.336619, 21.09249, 0), V(0, 0, 1), 3), math.radians(-148.48386), math.radians(31.51614)), False)
sketch15.addConstraint(Sketcher.Constraint("Tangent", 0, 2, 1, 2))
sketch15.addConstraint(Sketcher.Constraint("Tangent", 1, 1, 2, 1))
sketch15.addConstraint(Sketcher.Constraint("Tangent", 2, 2, 3, 2))
sketch15.addConstraint(Sketcher.Constraint("Tangent", 3, 1, 0, 1))
sketch15.addConstraint(Sketcher.Constraint("Equal", 1, 3))
sketch15.addConstraint(Sketcher.Constraint("Radius", 1, 3.0))
sketch15.addConstraint(Sketcher.Constraint("DistanceX", 1, 3, -1, 1, 33.003899))
sketch15.addConstraint(Sketcher.Constraint("DistanceX", 1, 1, 3, 3, 13.109801))
sketch15.addConstraint(Sketcher.Constraint("Distance", 0, 29.971531))
sketch15.addConstraint(Sketcher.Constraint("DistanceY", -1, 1, 1, 3, 46.643008))
pocket12 = body.newObject("PartDesign::Pocket", "Pocket011")
pocket12.Profile = sketch15
pocket12.Type = "UpToFirst"
pocket12.Reversed = True

sketch16 = body.newObject("Sketcher::SketchObject", "Sketch015")
sketch16.AttachmentSupport = (doc.getObject("XY_Plane"), [""])
sketch16.MapMode = "FlatFace"
sketch16.AttachmentOffset = App.Placement(V(0, 0, -45), App.Rotation())
sketch16.addGeometry(Part.LineSegment(V(-33.034917, 19.761127, 0), V(-48.702197, 45.311645, 0)), False)
sketch16.addGeometry(Part.ArcOfCircle(Part.Circle(V(-46.144718, 46.879862, 0), V(0, 0, 1), 3), math.radians(31.51614), math.radians(211.51614)), False)
sketch16.addGeometry(Part.LineSegment(V(-43.587239, 48.448078, 0), V(-27.919959, 22.897559, 0)), False)
sketch16.addGeometry(Part.ArcOfCircle(Part.Circle(V(-30.477438, 21.329343, 0), V(0, 0, 1), 3), math.radians(-148.48386), math.radians(31.51614)), False)
sketch16.addConstraint(Sketcher.Constraint("Tangent", 0, 2, 1, 2))
sketch16.addConstraint(Sketcher.Constraint("Tangent", 1, 1, 2, 1))
sketch16.addConstraint(Sketcher.Constraint("Tangent", 2, 2, 3, 2))
sketch16.addConstraint(Sketcher.Constraint("Tangent", 3, 1, 0, 1))
sketch16.addConstraint(Sketcher.Constraint("Equal", 1, 3))
sketch16.addConstraint(Sketcher.Constraint("Radius", 1, 3.0))
sketch16.addConstraint(Sketcher.Constraint("DistanceX", 1, 1, 3, 3, 13.109801))
sketch16.addConstraint(Sketcher.Constraint("Distance", 0, 29.971531))
sketch16.addConstraint(Sketcher.Constraint("DistanceX", 1, 3, -1, 1, 46.144718))
sketch16.addConstraint(Sketcher.Constraint("DistanceY", -1, 1, 1, 3, 46.879862))
pocket13 = body.newObject("PartDesign::Pocket", "Pocket012")
pocket13.Profile = sketch16
pocket13.Type = "UpToFirst"
pocket13.Reversed = True

sketch17 = body.newObject("Sketcher::SketchObject", "Sketch016")
sketch17.AttachmentSupport = (doc.getObject("YZ_Plane"), [""])
sketch17.MapMode = "FlatFace"
sketch17.AttachmentOffset = App.Placement(V(0, 0, 62.5), App.Rotation())
add_polygon(sketch17, [(19.047392, -5.578921), (19.047392, -9.382103), (5.775644, -9.382103), (5.775644, -20.587908), (19.047392, -20.587908), (19.047392, -28.873412), (28.41952, -28.873412), (28.41952, -5.578921)])
sketch17.addConstraint(Sketcher.Constraint("Vertical", 0))
sketch17.addConstraint(Sketcher.Constraint("Horizontal", 1))
sketch17.addConstraint(Sketcher.Constraint("Vertical", 2))
sketch17.addConstraint(Sketcher.Constraint("Horizontal", 3))
sketch17.addConstraint(Sketcher.Constraint("Vertical", 4))
sketch17.addConstraint(Sketcher.Constraint("Horizontal", 5))
sketch17.addConstraint(Sketcher.Constraint("Vertical", 6))
sketch17.addConstraint(Sketcher.Constraint("Horizontal", 7))
sketch17.addConstraint(Sketcher.Constraint("Vertical", 0, 2, 3, 2))
sketch17.addConstraint(Sketcher.Constraint("DistanceY", 6, 1, 6, 2, 23.294492))
sketch17.addConstraint(Sketcher.Constraint("DistanceX", 1, 2, 1, 1, 13.271748))
sketch17.addConstraint(Sketcher.Constraint("DistanceX", 5, 1, 5, 2, 9.372128))
sketch17.addConstraint(Sketcher.Constraint("DistanceY", 0, 2, 0, 1, 3.803182))
sketch17.addConstraint(Sketcher.Constraint("DistanceY", 2, 2, 2, 1, 11.205805))
sketch17.addConstraint(Sketcher.Constraint("DistanceX", -1, 1, 0, 2, 19.047392))
sketch17.addConstraint(Sketcher.Constraint("DistanceY", 2, 2, -1, 1, 20.587908))
pocket14 = body.newObject("PartDesign::Pocket", "Pocket013")
pocket14.Profile = sketch17
pocket14.Type = "UpToFirst"

sketch18 = body.newObject("Sketcher::SketchObject", "Sketch017")
sketch18.AttachmentSupport = (doc.getObject("YZ_Plane"), [""])
sketch18.MapMode = "FlatFace"
sketch18.AttachmentOffset = App.Placement(V(0, 0, 62.5), App.Rotation())
add_polygon(sketch18, [(18.108754, 21.99364), (5.775644, 21.99364), (5.775644, 8.088112), (18.108754, 8.088112)])
sketch18.addConstraint(Sketcher.Constraint("Horizontal", 0))
sketch18.addConstraint(Sketcher.Constraint("Vertical", 1))
sketch18.addConstraint(Sketcher.Constraint("Horizontal", 2))
sketch18.addConstraint(Sketcher.Constraint("Vertical", 3))
sketch18.addConstraint(Sketcher.Constraint("DistanceX", 0, 2, 0, 1, 12.33311))
sketch18.addConstraint(Sketcher.Constraint("DistanceY", 1, 2, 1, 1, 13.905528))
sketch18.addConstraint(Sketcher.Constraint("DistanceY", -1, 1, 0, 2, 21.99364))
sketch18.addConstraint(Sketcher.Constraint("DistanceX", -1, 1, 0, 2, 5.775644))
pocket15 = body.newObject("PartDesign::Pocket", "Pocket014")
pocket15.Profile = sketch18
pocket15.Type = "UpToFirst"

sketch19 = body.newObject("Sketcher::SketchObject", "Sketch018")
sketch19.AttachmentSupport = (doc.getObject("XZ_Plane"), [""])
sketch19.MapMode = "FlatFace"
sketch19.AttachmentOffset = App.Placement(V(0, 0, -5), App.Rotation())
sketch19.addGeometry(Part.Circle(V(42.046142, -20.540311, 0), V(0, 0, 1), 1.5875), False)
sketch19.addConstraint(Sketcher.Constraint("Diameter", 0, 3.175))
sketch19.addConstraint(Sketcher.Constraint("DistanceY", 0, 3, -1, 1, 20.540311))
sketch19.addConstraint(Sketcher.Constraint("DistanceX", -1, 1, 0, 3, 42.046142))
pocket16 = body.newObject("PartDesign::Pocket", "Pocket015")
pocket16.Profile = sketch19
pocket16.Type = "UpToFirst"
pocket16.Reversed = True

sketch20 = body.newObject("Sketcher::SketchObject", "Sketch019")
sketch20.AttachmentSupport = (doc.getObject("XZ_Plane"), [""])
sketch20.MapMode = "FlatFace"
sketch20.AttachmentOffset = App.Placement(V(0, 0, -5), App.Rotation())
sketch20.addGeometry(Part.Circle(V(40.776142, 27.719689, 0), V(0, 0, 1), 1.5875), False)
sketch20.addConstraint(Sketcher.Constraint("Diameter", 0, 3.175))
sketch20.addConstraint(Sketcher.Constraint("DistanceY", -1, 1, 0, 3, 27.719689))
sketch20.addConstraint(Sketcher.Constraint("DistanceX", -1, 1, 0, 3, 40.776142))
pocket17 = body.newObject("PartDesign::Pocket", "Pocket016")
pocket17.Profile = sketch20
pocket17.Type = "UpToFirst"
pocket17.Reversed = True

sketch21 = body.newObject("Sketcher::SketchObject", "Sketch020")
sketch21.AttachmentSupport = (doc.getObject("XZ_Plane"), [""])
sketch21.MapMode = "FlatFace"
sketch21.AttachmentOffset = App.Placement(V(0, 0, -5), App.Rotation())
sketch21.addGeometry(Part.Circle(V(-40.503858, -20.540311, 0), V(0, 0, 1), 1.5875), False)
sketch21.addConstraint(Sketcher.Constraint("Diameter", 0, 3.175))
sketch21.addConstraint(Sketcher.Constraint("DistanceY", 0, 3, -1, 1, 20.540311))
sketch21.addConstraint(Sketcher.Constraint("DistanceX", 0, 3, -1, 1, 40.503858))
pocket18 = body.newObject("PartDesign::Pocket", "Pocket017")
pocket18.Profile = sketch21
pocket18.Type = "UpToFirst"
pocket18.Reversed = True

sketch22 = body.newObject("Sketcher::SketchObject", "Sketch021")
sketch22.AttachmentSupport = (doc.getObject("XZ_Plane"), [""])
sketch22.MapMode = "FlatFace"
sketch22.AttachmentOffset = App.Placement(V(0, 0, -5), App.Rotation())
sketch22.addGeometry(Part.Circle(V(-34.153858, 27.719689, 0), V(0, 0, 1), 1.5875), False)
sketch22.addConstraint(Sketcher.Constraint("Diameter", 0, 3.175))
sketch22.addConstraint(Sketcher.Constraint("DistanceY", -1, 1, 0, 3, 27.719689))
sketch22.addConstraint(Sketcher.Constraint("DistanceX", 0, 3, -1, 1, 34.153858))
pocket19 = body.newObject("PartDesign::Pocket", "Pocket018")
pocket19.Profile = sketch22
pocket19.Type = "UpToFirst"
pocket19.Reversed = True

doc.recompute()
